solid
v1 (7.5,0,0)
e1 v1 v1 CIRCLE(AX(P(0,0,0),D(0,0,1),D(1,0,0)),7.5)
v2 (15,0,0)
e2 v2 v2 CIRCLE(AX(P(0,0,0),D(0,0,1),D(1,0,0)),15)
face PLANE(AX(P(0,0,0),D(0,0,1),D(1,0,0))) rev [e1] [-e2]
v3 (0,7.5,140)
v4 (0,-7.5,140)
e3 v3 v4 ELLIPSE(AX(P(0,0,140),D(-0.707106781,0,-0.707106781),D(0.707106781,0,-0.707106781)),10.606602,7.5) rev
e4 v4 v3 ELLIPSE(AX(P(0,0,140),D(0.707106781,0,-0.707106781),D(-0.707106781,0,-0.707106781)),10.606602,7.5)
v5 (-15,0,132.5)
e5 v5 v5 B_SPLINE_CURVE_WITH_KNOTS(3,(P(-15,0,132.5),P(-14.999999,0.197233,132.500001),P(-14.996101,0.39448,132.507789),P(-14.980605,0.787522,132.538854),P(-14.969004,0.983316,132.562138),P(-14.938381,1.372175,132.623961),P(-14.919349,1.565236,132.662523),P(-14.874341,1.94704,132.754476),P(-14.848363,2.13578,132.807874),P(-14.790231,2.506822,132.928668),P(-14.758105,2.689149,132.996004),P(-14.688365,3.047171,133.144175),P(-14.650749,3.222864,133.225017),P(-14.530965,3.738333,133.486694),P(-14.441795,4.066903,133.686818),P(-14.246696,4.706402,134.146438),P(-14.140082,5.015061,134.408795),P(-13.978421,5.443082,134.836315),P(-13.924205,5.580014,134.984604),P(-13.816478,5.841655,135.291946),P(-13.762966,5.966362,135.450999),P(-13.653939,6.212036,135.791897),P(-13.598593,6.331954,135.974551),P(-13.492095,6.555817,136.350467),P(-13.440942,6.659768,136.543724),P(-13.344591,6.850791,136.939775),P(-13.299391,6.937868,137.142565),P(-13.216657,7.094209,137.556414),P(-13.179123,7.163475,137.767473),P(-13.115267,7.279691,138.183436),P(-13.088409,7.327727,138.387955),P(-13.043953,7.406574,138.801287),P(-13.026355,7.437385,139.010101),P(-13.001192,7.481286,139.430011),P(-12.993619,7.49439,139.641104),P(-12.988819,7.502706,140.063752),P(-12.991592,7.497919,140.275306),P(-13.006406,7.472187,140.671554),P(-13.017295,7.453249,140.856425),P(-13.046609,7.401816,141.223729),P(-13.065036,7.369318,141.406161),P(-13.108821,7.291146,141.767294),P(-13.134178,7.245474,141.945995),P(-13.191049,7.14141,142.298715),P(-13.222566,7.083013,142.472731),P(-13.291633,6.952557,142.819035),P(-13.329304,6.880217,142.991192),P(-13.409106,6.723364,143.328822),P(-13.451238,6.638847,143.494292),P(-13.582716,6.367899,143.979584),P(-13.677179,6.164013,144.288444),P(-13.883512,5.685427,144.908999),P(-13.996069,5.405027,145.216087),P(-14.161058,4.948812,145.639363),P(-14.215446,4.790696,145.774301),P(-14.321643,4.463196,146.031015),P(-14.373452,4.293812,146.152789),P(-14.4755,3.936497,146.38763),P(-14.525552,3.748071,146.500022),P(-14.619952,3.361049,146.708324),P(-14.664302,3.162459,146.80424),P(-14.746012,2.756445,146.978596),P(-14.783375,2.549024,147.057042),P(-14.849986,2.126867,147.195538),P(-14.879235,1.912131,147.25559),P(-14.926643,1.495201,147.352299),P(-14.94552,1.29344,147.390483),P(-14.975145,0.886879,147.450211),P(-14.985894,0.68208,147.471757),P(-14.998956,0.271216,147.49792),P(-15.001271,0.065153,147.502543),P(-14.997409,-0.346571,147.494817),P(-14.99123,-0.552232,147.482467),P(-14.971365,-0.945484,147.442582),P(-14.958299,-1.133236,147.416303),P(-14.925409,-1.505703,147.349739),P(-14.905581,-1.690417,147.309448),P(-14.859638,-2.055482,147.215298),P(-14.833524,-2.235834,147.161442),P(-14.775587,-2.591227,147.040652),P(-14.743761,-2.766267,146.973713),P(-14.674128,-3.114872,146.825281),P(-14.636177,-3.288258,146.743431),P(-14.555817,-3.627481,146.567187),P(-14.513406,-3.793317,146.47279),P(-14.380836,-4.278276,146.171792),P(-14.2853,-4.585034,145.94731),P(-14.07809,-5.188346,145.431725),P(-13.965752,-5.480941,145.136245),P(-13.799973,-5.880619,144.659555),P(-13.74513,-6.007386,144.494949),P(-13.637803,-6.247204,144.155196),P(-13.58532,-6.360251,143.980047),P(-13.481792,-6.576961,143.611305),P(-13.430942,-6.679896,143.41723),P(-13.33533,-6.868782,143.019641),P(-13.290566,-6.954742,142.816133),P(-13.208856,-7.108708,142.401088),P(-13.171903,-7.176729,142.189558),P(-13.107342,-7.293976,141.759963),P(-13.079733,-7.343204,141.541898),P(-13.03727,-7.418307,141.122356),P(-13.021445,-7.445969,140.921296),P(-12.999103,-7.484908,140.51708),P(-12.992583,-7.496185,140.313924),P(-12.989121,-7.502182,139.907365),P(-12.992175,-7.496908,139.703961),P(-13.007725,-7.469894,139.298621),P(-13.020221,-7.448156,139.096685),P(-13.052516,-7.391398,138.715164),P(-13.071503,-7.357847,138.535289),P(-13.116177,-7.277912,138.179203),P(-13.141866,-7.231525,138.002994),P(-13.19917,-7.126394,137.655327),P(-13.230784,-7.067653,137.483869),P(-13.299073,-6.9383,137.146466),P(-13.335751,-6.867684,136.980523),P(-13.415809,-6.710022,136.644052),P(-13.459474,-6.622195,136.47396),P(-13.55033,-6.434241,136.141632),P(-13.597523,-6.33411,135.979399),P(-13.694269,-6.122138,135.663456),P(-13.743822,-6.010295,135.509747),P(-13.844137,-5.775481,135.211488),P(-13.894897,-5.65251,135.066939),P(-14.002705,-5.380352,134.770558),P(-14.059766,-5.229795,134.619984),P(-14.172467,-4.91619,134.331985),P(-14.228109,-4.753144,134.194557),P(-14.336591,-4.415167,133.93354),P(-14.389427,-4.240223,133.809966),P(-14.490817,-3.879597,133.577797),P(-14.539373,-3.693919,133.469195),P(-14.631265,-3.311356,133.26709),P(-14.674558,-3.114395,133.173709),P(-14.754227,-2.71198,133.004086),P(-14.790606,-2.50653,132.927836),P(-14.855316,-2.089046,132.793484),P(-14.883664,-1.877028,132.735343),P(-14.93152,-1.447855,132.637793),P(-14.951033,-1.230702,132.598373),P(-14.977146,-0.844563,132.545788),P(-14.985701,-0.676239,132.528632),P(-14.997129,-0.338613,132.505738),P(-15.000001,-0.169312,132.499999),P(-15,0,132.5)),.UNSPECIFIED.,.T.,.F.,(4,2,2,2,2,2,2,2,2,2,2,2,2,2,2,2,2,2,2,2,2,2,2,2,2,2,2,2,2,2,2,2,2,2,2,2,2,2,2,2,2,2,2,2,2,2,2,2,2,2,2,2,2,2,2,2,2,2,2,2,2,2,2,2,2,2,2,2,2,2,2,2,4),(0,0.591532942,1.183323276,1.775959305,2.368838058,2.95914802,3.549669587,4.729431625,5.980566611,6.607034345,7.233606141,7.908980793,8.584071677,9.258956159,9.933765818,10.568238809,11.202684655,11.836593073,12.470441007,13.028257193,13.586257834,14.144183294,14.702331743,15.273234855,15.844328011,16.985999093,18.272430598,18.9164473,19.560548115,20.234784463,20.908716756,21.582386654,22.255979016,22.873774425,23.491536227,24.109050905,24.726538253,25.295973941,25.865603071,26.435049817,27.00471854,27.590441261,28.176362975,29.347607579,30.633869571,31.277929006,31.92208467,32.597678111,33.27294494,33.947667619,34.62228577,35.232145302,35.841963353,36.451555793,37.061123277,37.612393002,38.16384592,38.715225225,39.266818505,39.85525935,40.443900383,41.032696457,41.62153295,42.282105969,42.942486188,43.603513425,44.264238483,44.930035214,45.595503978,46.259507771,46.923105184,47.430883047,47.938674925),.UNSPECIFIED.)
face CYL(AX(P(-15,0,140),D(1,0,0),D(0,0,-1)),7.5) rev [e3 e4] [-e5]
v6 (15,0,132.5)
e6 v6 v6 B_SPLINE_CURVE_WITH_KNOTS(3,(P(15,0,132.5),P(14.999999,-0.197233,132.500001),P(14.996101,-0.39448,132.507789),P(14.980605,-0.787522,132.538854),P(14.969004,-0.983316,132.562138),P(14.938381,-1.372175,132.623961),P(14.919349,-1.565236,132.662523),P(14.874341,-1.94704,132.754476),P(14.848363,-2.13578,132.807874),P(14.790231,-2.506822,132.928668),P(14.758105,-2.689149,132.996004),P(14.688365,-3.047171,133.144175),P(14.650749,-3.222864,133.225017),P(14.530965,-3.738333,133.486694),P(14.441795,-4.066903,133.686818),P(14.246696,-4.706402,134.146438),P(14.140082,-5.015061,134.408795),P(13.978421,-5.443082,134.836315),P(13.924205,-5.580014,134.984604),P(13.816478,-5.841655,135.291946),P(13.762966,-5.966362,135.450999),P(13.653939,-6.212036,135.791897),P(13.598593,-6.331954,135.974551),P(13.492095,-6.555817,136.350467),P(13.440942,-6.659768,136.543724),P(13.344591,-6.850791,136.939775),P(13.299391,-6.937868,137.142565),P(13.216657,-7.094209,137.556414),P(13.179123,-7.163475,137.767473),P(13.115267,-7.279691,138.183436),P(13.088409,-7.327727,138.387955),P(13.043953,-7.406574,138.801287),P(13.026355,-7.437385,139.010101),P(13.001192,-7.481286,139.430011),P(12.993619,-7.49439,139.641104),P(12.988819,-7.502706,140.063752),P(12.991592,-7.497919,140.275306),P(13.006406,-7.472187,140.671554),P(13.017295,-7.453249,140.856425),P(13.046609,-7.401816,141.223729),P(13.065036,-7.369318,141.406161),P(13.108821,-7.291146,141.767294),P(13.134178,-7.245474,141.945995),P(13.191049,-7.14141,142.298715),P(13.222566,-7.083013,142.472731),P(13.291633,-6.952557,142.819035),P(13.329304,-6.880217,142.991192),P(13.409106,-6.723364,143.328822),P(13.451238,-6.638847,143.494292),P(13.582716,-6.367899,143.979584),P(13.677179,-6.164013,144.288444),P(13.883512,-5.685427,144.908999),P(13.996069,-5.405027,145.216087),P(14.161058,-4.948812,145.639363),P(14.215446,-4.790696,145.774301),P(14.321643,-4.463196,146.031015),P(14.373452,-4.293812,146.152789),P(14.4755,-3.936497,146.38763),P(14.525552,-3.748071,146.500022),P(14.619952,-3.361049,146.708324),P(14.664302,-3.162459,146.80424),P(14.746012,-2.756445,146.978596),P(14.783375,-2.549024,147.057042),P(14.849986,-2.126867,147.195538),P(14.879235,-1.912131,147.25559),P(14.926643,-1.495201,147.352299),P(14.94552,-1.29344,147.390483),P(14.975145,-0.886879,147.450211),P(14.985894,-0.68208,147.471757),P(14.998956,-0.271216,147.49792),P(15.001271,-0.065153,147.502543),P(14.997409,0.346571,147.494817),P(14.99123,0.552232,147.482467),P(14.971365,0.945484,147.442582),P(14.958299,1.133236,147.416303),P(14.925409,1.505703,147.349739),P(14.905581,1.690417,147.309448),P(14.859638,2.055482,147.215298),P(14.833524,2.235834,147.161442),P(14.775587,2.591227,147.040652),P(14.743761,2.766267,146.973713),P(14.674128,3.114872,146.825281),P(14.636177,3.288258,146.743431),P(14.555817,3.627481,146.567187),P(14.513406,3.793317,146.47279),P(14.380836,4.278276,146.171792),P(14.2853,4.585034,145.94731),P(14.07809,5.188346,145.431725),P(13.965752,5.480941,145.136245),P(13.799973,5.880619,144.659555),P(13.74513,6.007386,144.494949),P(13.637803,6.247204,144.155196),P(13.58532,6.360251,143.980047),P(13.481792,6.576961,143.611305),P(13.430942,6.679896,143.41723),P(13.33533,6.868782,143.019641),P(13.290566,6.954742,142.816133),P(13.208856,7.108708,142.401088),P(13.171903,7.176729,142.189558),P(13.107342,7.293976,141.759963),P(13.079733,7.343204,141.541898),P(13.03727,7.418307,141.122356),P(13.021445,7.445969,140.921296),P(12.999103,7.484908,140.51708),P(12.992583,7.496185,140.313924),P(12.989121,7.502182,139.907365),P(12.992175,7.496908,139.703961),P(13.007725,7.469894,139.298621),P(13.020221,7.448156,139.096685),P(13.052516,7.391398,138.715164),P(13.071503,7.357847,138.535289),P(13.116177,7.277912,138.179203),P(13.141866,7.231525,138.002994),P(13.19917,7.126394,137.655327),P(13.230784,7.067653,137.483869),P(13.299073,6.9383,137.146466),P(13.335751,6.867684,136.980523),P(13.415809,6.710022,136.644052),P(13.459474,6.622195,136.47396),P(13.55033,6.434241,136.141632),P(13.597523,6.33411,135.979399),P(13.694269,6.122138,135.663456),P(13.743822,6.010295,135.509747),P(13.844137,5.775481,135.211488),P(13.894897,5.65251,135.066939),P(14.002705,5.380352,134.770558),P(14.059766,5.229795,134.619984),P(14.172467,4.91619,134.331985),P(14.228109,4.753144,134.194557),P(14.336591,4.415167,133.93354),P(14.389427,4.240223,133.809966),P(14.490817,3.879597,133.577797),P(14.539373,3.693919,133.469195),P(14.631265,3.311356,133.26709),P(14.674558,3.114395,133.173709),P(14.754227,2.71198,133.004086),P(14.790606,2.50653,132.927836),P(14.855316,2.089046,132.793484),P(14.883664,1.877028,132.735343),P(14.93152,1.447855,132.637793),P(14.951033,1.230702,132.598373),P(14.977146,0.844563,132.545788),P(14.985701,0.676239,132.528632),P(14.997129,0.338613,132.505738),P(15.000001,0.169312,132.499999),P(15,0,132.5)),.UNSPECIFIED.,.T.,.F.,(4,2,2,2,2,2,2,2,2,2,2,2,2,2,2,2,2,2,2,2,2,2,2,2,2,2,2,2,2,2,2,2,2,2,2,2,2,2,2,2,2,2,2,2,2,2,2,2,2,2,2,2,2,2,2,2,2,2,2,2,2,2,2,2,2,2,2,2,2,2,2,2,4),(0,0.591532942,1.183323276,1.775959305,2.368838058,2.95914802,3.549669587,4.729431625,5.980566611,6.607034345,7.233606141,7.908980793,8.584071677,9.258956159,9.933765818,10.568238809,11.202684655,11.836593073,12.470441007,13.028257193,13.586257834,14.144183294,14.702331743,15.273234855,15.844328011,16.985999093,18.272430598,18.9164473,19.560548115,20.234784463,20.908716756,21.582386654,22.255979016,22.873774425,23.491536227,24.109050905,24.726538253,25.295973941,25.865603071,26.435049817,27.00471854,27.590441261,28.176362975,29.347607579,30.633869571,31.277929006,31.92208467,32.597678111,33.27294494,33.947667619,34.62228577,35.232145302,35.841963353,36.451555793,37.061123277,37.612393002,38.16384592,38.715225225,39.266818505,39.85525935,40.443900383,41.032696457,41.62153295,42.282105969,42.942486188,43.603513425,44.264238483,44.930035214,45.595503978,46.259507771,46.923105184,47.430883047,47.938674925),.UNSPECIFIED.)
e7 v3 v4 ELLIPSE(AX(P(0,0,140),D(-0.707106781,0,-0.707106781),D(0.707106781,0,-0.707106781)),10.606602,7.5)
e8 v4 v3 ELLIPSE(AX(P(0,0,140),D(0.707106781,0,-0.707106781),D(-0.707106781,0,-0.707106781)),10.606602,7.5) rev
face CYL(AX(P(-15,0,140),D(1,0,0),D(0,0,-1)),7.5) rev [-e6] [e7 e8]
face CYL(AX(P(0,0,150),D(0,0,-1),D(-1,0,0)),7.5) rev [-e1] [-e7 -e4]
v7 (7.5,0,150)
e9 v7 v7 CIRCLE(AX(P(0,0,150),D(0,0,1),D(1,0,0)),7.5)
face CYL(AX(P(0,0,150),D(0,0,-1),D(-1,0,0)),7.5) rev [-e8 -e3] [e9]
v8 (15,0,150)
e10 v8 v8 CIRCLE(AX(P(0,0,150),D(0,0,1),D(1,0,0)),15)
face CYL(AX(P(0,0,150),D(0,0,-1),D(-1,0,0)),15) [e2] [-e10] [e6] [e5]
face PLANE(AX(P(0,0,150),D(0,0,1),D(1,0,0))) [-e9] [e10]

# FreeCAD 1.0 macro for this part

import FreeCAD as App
import Part
import Sketcher
from FreeCAD import Vector
Q = App.Units.Quantity

doc = App.newDocument("Part")
body = doc.addObject("PartDesign::Body", "Body")

sketch1 = body.newObject("Sketcher::SketchObject", "Sketch")
sketch1.AttachmentSupport = (doc.getObject("XY_Plane"), [""])
sketch1.MapMode = "FlatFace"
sketch1.addGeometry(Part.Circle(Vector(0, 0, 0), Vector(0, 0, 1), 15), False)
sketch1.addGeometry(Part.Circle(Vector(0, 0, 0), Vector(0, 0, 1), 7.5), False)
sketch1.addConstraint(Sketcher.Constraint("Coincident", 0, 3, -1, 1))
sketch1.addConstraint(Sketcher.Constraint("Coincident", 1, 3, -1, 1))
sketch1.addConstraint(Sketcher.Constraint("Diameter", 0, Q("30 mm")))
sketch1.addConstraint(Sketcher.Constraint("Diameter", 1, Q("15 mm")))
pad1 = body.newObject("PartDesign::Pad", "Pad")
pad1.Profile = sketch1
pad1.Length = 150

sketch2 = body.newObject("Sketcher::SketchObject", "Sketch001")
sketch2.AttachmentSupport = (doc.getObject("YZ_Plane"), [""])
sketch2.MapMode = "FlatFace"
sketch2.addGeometry(Part.Circle(Vector(0, 140, 0), Vector(0, 0, 1), 7.5), False)
sketch2.addConstraint(Sketcher.Constraint("PointOnObject", 0, 3, -2))
sketch2.addConstraint(Sketcher.Constraint("Diameter", 0, Q("15 mm")))
sketch2.addConstraint(Sketcher.Constraint("DistanceY", -1, 1, 0, 3, Q("140 mm")))
pocket1 = body.newObject("PartDesign::Pocket", "Pocket")
pocket1.Profile = sketch2
pocket1.Type = "ThroughAll"
pocket1.Midplane = True

doc.recompute()
